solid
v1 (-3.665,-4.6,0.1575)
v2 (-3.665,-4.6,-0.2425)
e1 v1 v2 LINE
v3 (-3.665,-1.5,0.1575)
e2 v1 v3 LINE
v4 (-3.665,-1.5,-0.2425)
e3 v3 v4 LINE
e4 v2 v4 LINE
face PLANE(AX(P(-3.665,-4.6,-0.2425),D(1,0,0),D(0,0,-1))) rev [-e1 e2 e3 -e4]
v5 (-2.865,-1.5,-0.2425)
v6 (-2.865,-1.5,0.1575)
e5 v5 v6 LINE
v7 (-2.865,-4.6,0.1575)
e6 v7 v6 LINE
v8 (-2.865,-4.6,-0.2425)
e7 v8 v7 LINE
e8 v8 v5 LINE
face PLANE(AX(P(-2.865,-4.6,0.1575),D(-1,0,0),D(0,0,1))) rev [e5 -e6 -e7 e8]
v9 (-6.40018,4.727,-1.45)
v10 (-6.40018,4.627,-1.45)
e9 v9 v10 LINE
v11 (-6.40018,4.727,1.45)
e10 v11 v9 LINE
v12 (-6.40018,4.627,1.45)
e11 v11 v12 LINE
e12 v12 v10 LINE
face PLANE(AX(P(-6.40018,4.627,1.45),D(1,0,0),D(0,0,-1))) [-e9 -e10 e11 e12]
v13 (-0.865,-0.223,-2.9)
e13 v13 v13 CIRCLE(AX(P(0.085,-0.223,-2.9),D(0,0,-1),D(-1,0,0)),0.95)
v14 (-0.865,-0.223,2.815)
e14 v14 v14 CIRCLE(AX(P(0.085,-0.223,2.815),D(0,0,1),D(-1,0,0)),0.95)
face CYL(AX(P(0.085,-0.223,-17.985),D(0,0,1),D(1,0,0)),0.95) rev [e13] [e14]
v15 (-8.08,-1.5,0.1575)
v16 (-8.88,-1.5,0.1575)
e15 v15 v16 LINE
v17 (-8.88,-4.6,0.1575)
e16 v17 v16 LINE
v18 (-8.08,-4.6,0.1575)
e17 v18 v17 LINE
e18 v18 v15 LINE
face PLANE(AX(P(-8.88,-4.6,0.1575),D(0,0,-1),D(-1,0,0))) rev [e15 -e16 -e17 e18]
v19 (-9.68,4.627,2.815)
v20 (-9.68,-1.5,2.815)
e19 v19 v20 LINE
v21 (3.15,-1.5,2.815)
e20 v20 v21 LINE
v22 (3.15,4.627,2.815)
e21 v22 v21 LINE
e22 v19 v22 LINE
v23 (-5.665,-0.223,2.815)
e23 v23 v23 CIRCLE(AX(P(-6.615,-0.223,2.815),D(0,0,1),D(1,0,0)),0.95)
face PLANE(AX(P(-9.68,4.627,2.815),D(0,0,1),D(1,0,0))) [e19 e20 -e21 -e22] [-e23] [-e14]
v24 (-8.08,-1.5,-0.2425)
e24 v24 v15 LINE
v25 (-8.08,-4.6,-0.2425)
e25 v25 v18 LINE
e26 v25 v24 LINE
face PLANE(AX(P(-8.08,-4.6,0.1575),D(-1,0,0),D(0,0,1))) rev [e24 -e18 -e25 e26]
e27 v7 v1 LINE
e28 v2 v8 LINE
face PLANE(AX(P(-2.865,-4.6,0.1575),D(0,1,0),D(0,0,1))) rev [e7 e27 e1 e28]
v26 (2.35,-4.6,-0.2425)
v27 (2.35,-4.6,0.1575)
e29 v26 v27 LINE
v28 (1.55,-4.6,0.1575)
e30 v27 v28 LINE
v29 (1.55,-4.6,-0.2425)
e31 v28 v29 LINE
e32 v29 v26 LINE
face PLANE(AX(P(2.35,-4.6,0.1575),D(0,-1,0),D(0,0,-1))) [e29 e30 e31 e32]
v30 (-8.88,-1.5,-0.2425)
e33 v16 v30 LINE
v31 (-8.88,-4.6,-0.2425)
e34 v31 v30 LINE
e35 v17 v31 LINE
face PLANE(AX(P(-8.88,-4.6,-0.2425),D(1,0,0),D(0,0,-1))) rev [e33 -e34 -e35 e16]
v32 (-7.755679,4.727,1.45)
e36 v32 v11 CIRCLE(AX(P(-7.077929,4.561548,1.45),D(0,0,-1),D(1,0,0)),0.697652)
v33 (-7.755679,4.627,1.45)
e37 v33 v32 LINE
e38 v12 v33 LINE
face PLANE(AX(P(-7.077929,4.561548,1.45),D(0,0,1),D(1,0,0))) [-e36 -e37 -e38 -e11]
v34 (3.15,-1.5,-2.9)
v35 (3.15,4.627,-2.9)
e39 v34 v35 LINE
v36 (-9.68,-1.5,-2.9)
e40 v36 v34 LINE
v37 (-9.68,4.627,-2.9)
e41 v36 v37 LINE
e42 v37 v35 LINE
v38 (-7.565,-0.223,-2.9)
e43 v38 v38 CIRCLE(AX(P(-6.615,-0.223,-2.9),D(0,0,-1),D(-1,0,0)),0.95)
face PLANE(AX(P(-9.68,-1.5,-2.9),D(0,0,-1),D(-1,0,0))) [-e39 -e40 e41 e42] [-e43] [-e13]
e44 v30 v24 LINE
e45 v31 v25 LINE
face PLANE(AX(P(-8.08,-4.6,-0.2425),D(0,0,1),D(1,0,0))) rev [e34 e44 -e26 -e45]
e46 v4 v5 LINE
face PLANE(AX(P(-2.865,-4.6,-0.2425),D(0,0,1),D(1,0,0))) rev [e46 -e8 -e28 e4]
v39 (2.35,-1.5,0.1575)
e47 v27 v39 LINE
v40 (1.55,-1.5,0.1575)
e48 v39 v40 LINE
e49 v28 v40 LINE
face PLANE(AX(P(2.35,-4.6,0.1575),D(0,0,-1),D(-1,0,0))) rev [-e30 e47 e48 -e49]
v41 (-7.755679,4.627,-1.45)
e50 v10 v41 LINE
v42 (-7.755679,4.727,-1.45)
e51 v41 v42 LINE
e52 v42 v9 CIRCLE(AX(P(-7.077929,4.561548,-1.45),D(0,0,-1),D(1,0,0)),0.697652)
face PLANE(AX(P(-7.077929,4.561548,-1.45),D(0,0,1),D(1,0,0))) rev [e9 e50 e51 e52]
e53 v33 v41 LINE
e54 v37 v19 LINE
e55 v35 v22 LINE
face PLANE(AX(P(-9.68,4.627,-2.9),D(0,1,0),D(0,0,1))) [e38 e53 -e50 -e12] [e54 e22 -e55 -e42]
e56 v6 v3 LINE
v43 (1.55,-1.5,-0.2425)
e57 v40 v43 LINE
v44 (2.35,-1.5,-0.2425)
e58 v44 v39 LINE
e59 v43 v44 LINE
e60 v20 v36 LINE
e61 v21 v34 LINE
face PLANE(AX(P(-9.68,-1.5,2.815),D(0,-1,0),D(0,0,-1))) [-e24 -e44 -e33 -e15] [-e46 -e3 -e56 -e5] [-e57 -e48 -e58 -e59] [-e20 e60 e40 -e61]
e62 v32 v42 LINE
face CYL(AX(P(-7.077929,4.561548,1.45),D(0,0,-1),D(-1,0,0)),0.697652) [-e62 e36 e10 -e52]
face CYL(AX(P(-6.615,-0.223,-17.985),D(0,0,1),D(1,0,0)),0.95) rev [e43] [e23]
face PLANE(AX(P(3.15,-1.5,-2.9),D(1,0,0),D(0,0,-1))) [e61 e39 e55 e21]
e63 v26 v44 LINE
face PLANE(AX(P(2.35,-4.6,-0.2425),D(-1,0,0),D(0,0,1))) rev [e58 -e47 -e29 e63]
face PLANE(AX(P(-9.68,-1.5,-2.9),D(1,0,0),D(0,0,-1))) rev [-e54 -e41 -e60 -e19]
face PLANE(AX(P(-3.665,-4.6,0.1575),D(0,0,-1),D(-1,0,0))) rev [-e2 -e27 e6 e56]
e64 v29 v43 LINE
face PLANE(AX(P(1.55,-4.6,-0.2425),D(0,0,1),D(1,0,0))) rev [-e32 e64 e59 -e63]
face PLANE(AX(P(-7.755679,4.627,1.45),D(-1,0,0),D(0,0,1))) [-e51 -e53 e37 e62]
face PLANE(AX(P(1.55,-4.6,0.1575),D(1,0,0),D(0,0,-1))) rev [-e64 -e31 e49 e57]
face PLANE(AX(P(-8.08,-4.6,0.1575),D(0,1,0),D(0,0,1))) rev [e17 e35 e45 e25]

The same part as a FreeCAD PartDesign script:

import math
import FreeCAD as App
import Part
import Sketcher
Q = App.Units.Quantity


def add_polygon(sketch, points):
    """Adds a closed chain of lines whose ends are joined by coincident constraints."""
    first, n = sketch.GeometryCount, len(points)
    for a, b in zip(points, points[1:] + points[:1]):
        sketch.addGeometry(Part.LineSegment(App.Vector(*a, 0), App.Vector(*b, 0)), False)
    for i in range(n):
        sketch.addConstraint(Sketcher.Constraint("Coincident", first + i, 2, first + (i + 1) % n, 1))

doc = App.newDocument("Part")
body = doc.addObject("PartDesign::Body", "Body")

sketch1 = body.newObject("Sketcher::SketchObject", "Sketch")
sketch1.AttachmentSupport = (doc.getObject("YZ_Plane"), [""])
sketch1.MapMode = "FlatFace"
sketch1.AttachmentOffset = App.Placement(App.Vector(0, 0, 3.15), App.Rotation())
add_polygon(sketch1, [(5, 3), (-2, 3), (-2, -3), (5, -3)])
sketch1.addConstraint(Sketcher.Constraint("Horizontal", 0))
sketch1.addConstraint(Sketcher.Constraint("Vertical", 1))
sketch1.addConstraint(Sketcher.Constraint("Horizontal", 2))
sketch1.addConstraint(Sketcher.Constraint("Vertical", 3))
sketch1.addConstraint(Sketcher.Constraint("DistanceX", 0, 2, -1, 1, Q("1.5 mm")))
sketch1.addConstraint(Sketcher.Constraint("DistanceY", 1, 2, -1, 1, Q("2.9 mm")))
sketch1.addConstraint(Sketcher.Constraint("DistanceX", 0, 2, 0, 1, Q("6.127 mm")))
sketch1.addConstraint(Sketcher.Constraint("DistanceY", 1, 2, 1, 1, Q("5.715 mm")))
pad1 = body.newObject("PartDesign::Pad", "Pad")
pad1.Profile = sketch1
pad1.Length = 12.83
pad1.Reversed = True

sketch2 = body.newObject("Sketcher::SketchObject", "Sketch001")
sketch2.AttachmentSupport = (doc.getObject("XY_Plane"), [""])
sketch2.MapMode = "FlatFace"
sketch2.AttachmentOffset = App.Placement(App.Vector(0, 0, 2.815), App.Rotation())
sketch2.addGeometry(Part.Circle(App.Vector(0.1, -0.2, 0), App.Vector(0, 0, 1), 0.9), False)
sketch2.addGeometry(Part.Circle(App.Vector(-6.6, -0.2, 0), App.Vector(0, 0, 1), 0.9), False)
sketch2.addConstraint(Sketcher.Constraint("Equal", 0, 1))
sketch2.addConstraint(Sketcher.Constraint("Horizontal", 0, 3, 1, 3))
sketch2.addConstraint(Sketcher.Constraint("Diameter", 0, Q("1.9 mm")))
sketch2.addConstraint(Sketcher.Constraint("DistanceX", 1, 3, 0, 3, Q("6.7 mm")))
sketch2.addConstraint(Sketcher.Constraint("DistanceX", -1, 1, 0, 3, Q("0.085 mm")))
sketch2.addConstraint(Sketcher.Constraint("DistanceY", 0, 3, -1, 1, Q("0.223 mm")))
pocket1 = body.newObject("PartDesign::Pocket", "Pocket")
pocket1.Profile = sketch2
pocket1.Length = 20.8

sketch3 = body.newObject("Sketcher::SketchObject", "Sketch002")
sketch3.AttachmentSupport = (doc.getObject("XZ_Plane"), [""])
sketch3.MapMode = "FlatFace"
sketch3.AttachmentOffset = App.Placement(App.Vector(0, 0, 1.5), App.Rotation())
add_polygon(sketch3, [(-8.88, 0.16), (-8.88, -0.24), (-8.08, -0.24), (-8.08, 0.16)])
add_polygon(sketch3, [(-3.67, 0.16), (-3.67, -0.24), (-2.87, -0.24), (-2.87, 0.16)])
add_polygon(sketch3, [(1.55, 0.16), (1.55, -0.24), (2.35, -0.24), (2.35, 0.16)])
sketch3.addConstraint(Sketcher.Constraint("Vertical", 0))
sketch3.addConstraint(Sketcher.Constraint("Horizontal", 1))
sketch3.addConstraint(Sketcher.Constraint("Vertical", 2))
sketch3.addConstraint(Sketcher.Constraint("Horizontal", 3))
sketch3.addConstraint(Sketcher.Constraint("Vertical", 4))
sketch3.addConstraint(Sketcher.Constraint("Horizontal", 5))
sketch3.addConstraint(Sketcher.Constraint("Vertical", 6))
sketch3.addConstraint(Sketcher.Constraint("Horizontal", 7))
sketch3.addConstraint(Sketcher.Constraint("Vertical", 8))
sketch3.addConstraint(Sketcher.Constraint("Horizontal", 9))
sketch3.addConstraint(Sketcher.Constraint("Vertical", 10))
sketch3.addConstraint(Sketcher.Constraint("Horizontal", 11))
sketch3.addConstraint(Sketcher.Constraint("Horizontal", 1, 2, 4, 2))
sketch3.addConstraint(Sketcher.Constraint("Horizontal", 3, 2, 6, 2))
sketch3.addConstraint(Sketcher.Constraint("Horizontal", 5, 2, 8, 2))
sketch3.addConstraint(Sketcher.Constraint("Horizontal", 7, 2, 10, 2))
sketch3.addConstraint(Sketcher.Constraint("Equal", 3, 5))
sketch3.addConstraint(Sketcher.Constraint("Equal", 7, 9))
sketch3.addConstraint(Sketcher.Constraint("DistanceX", 1, 1, 1, 2, Q("0.8 mm")))
sketch3.addConstraint(Sketcher.Constraint("DistanceY", 0, 2, 0, 1, Q("0.4 mm")))
sketch3.addConstraint(Sketcher.Constraint("DistanceX", 0, 2, -1, 1, Q("8.88 mm")))
sketch3.addConstraint(Sketcher.Constraint("DistanceX", -1, 1, 8, 2, Q("1.55 mm")))
sketch3.addConstraint(Sketcher.Constraint("DistanceX", 4, 2, -1, 1, Q("3.665 mm")))
sketch3.addConstraint(Sketcher.Constraint("DistanceY", 0, 2, -1, 1, Q("0.2425 mm")))
pad2 = body.newObject("PartDesign::Pad", "Pad001")
pad2.Profile = sketch3
pad2.Length = 3.1

sketch4 = body.newObject("Sketcher::SketchObject", "Sketch003")
sketch4.AttachmentSupport = (doc.getObject("XY_Plane"), [""])
sketch4.MapMode = "FlatFace"
sketch4.AttachmentOffset = App.Placement(App.Vector(0, 0, -1.45), App.Rotation())
sketch4.addGeometry(Part.LineSegment(App.Vector(-6.4, 4.63, 0), App.Vector(-7.76, 4.63, 0)), False)
sketch4.addGeometry(Part.LineSegment(App.Vector(-7.76, 4.63, 0), App.Vector(-7.76, 4.73, 0)), False)
sketch4.addGeometry(Part.ArcOfCircle(Part.Circle(App.Vector(-7.08, 4.56, 0), App.Vector(0, 0, 1), 0.7), math.radians(14), math.radians(166)), False)
sketch4.addGeometry(Part.LineSegment(App.Vector(-6.4, 4.73, 0), App.Vector(-6.4, 4.63, 0)), False)
sketch4.addConstraint(Sketcher.Constraint("Coincident", 0, 2, 1, 1))
sketch4.addConstraint(Sketcher.Constraint("Coincident", 1, 2, 2, 2))
sketch4.addConstraint(Sketcher.Constraint("Coincident", 2, 1, 3, 1))
sketch4.addConstraint(Sketcher.Constraint("Coincident", 3, 2, 0, 1))
sketch4.addConstraint(Sketcher.Constraint("Horizontal", 0))
sketch4.addConstraint(Sketcher.Constraint("Vertical", 1))
sketch4.addConstraint(Sketcher.Constraint("Vertical", 3))
sketch4.addConstraint(Sketcher.Constraint("Horizontal", 1, 2, 2, 1))
sketch4.addConstraint(Sketcher.Constraint("DistanceY", 1, 1, 1, 2, Q("0.1 mm")))
sketch4.addConstraint(Sketcher.Constraint("DistanceX", 0, 2, 0, 1, Q("1.355499 mm")))
sketch4.addConstraint(Sketcher.Constraint("DistanceY", -1, 1, 0, 2, Q("4.627 mm")))
sketch4.addConstraint(Sketcher.Constraint("Radius", 2, Q("0.697652 mm")))
sketch4.addConstraint(Sketcher.Constraint("DistanceX", 2, 3, -1, 1, Q("7.077929 mm")))
pad3 = body.newObject("PartDesign::Pad", "Pad002")
pad3.Profile = sketch4
pad3.Length = 2.9

doc.recompute()
